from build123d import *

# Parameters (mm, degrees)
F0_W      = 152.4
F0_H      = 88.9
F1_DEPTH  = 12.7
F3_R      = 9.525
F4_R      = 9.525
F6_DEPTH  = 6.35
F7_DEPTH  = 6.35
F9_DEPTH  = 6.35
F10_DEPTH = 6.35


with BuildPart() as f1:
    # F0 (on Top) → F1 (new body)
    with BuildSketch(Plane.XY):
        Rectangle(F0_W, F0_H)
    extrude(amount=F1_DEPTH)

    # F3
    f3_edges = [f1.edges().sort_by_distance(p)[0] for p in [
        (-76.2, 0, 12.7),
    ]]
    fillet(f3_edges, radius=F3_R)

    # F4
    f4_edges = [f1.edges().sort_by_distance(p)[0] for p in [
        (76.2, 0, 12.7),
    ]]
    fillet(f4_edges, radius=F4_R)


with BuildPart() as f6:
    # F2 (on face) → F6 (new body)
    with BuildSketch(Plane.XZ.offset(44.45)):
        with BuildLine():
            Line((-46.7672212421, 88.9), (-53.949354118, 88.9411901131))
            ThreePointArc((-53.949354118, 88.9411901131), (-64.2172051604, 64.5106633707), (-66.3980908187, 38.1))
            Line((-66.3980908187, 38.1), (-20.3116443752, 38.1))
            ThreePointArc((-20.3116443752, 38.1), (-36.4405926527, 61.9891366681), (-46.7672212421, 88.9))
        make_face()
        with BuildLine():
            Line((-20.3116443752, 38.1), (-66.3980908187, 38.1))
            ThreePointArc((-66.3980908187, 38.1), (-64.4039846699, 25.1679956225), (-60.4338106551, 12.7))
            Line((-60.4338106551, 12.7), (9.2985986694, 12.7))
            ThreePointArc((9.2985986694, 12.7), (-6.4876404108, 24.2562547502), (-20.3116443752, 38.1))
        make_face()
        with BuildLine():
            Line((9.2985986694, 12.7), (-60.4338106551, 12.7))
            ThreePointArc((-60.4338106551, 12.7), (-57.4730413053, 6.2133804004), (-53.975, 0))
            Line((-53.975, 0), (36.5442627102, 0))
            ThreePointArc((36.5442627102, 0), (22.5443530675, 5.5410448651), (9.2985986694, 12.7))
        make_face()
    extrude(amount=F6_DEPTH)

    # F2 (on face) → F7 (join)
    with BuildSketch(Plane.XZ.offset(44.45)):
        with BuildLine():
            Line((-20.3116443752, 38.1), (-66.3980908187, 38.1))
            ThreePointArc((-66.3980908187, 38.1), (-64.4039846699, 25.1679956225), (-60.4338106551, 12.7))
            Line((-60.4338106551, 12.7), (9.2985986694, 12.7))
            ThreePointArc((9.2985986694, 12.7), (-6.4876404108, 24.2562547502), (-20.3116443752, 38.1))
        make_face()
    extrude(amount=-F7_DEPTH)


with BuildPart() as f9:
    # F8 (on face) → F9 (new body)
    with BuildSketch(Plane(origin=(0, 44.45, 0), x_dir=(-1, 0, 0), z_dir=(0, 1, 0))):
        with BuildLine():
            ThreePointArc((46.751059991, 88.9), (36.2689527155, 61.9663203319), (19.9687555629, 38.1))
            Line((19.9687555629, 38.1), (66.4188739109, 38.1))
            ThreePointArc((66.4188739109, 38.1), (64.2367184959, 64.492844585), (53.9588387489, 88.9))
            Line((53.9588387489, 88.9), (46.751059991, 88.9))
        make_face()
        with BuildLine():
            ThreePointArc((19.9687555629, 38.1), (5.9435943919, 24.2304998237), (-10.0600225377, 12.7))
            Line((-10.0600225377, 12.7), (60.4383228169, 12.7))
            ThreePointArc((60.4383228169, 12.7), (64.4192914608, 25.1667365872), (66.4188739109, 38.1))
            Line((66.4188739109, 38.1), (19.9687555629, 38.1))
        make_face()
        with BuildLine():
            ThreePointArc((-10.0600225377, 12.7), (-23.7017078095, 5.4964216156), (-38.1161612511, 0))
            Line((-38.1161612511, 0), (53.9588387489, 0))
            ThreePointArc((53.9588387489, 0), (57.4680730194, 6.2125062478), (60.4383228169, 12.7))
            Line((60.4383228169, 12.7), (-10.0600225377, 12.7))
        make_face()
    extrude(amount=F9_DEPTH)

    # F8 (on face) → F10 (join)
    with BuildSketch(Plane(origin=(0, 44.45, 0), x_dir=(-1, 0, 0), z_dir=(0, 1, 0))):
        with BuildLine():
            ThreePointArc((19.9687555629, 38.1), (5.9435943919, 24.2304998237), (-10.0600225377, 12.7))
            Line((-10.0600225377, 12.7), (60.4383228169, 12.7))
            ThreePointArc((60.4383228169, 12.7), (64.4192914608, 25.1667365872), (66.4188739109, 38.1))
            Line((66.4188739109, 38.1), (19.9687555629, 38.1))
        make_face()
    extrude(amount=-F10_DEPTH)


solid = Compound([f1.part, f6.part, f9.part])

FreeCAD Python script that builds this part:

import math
import FreeCAD as App
import Part
import Sketcher
from FreeCAD import Vector
Q = App.Units.Quantity


def edges_at(feature, points):
    """Names of the edges that pass closest to the given points."""
    edges = feature.Shape.Edges
    near = lambda p: min(range(len(edges)), key=lambda i: edges[i].distToShape(Part.Vertex(*p))[0])
    return sorted({f"Edge{near(p) + 1}" for p in points})

doc = App.newDocument("Part")
body = doc.addObject("PartDesign::Body", "Body")

# Sketch on XY plane
sketch1 = body.newObject("Sketcher::SketchObject", "Sketch")
sketch1.AttachmentSupport = (doc.getObject("XY_Plane"), [""])
sketch1.MapMode = "FlatFace"
sketch1.addGeometry([
    Part.LineSegment(Vector(-76, 44, 0), Vector(-76, -44, 0)),
    Part.LineSegment(Vector(-76, -44, 0), Vector(76, -44, 0)),
    Part.LineSegment(Vector(76, -44, 0), Vector(76, 44, 0)),
    Part.LineSegment(Vector(76, 44, 0), Vector(-76, 44, 0)),
], False)
sketch1.addConstraint([
    Sketcher.Constraint("Coincident", 0, 2, 1, 1),
    Sketcher.Constraint("Coincident", 1, 2, 2, 1),
    Sketcher.Constraint("Coincident", 2, 2, 3, 1),
    Sketcher.Constraint("Coincident", 3, 2, 0, 1),
    Sketcher.Constraint("Vertical", 0),
    Sketcher.Constraint("Horizontal", 1),
    Sketcher.Constraint("Vertical", 2),
    Sketcher.Constraint("Horizontal", 3),
    Sketcher.Constraint("Symmetric", 0, 2, 2, 2, -1, 1),
    Sketcher.Constraint("DistanceX", 1, 1, 1, 2, Q("6 in")),
    Sketcher.Constraint("DistanceY", 0, 2, 0, 1, Q("3.5 in")),
])
pad1 = body.newObject("PartDesign::Pad", "Pad")
pad1.Profile = sketch1
pad1.Length = Q("0.5 in")
doc.recompute()

fillet = body.newObject("PartDesign::Fillet", "Fillet")
fillet.Base = (pad1, edges_at(pad1, [(-76.2, 0, 12.7)]))
fillet.Radius = Q("0.375 in")
doc.recompute()

fillet2 = body.newObject("PartDesign::Fillet", "Fillet001")
fillet2.Base = (fillet, edges_at(fillet, [(76.2, 0, 12.7)]))
fillet2.Radius = Q("0.375 in")
body2 = doc.addObject("PartDesign::Body", "Body001")

# Sketch on XZ plane
sketch2 = body2.newObject("Sketcher::SketchObject", "Sketch001")
sketch2.AttachmentSupport = (doc.getObject("XZ_Plane001"), [""])
sketch2.MapMode = "FlatFace"
sketch2.AttachmentOffset = App.Placement(Vector(0, 0, 1.75 * 25.4), App.Rotation())
sketch2.addGeometry([
    Part.LineSegment(Vector(-47, 89, 0), Vector(-54, 89, 0)),  # 0
    Part.ArcOfCircle(Part.Circle(Vector(18, 44, 0), Vector(0, 0, 1), 84), math.radians(148), math.radians(184)),  # 1
    Part.ArcOfCircle(Part.Circle(Vector(18, 44, 0), Vector(0, 0, 1), 84), math.radians(-175.68), math.radians(-157.89)),  # 2
    Part.ArcOfCircle(Part.Circle(Vector(18, 44, 0), Vector(0, 0, 1), 84), math.radians(-157.89), math.radians(-148.2)),  # 3
    Part.LineSegment(Vector(-54, 0, 0), Vector(37, 0, 0)),  # 4
    Part.ArcOfCircle(Part.Circle(Vector(76, 121, 0), Vector(0, 0, 1), 127), math.radians(-121.79), math.radians(-108.19)),  # 5
    Part.ArcOfCircle(Part.Circle(Vector(76, 121, 0), Vector(0, 0, 1), 127), math.radians(-139.46), math.radians(-121.79)),  # 6
    Part.ArcOfCircle(Part.Circle(Vector(76, 121, 0), Vector(0, 0, 1), 127), math.radians(-166), math.radians(-139)),  # 7
], False)
sketch2.addConstraint([
    Sketcher.Constraint("Coincident", 0, 2, 1, 1),
    Sketcher.Constraint("Tangent", 1, 2, 2, 1),
    Sketcher.Constraint("Tangent", 2, 2, 3, 1),
    Sketcher.Constraint("Coincident", 3, 2, 4, 1),
    Sketcher.Constraint("Coincident", 4, 2, 5, 2),
    Sketcher.Constraint("Tangent", 5, 1, 6, 2),
    Sketcher.Constraint("Tangent", 6, 1, 7, 2),
    Sketcher.Constraint("Coincident", 7, 1, 0, 1),
    Sketcher.Constraint("Horizontal", 4),
    Sketcher.Constraint("Coincident", 3, 3, 1, 3),
    Sketcher.Constraint("Coincident", 7, 3, 5, 3),
    Sketcher.Constraint("PointOnObject", 3, 2, -1),
    Sketcher.Constraint("Horizontal", 2, 2, 5, 1),
    Sketcher.Constraint("Horizontal", 1, 2, 6, 1),
    Sketcher.Constraint("Radius", 5, Q("5 in")),
    Sketcher.Constraint("DistanceX", -1, 1, 5, 3, Q("3 in")),
    Sketcher.Constraint("DistanceY", 2, 2, 1, 2, Q("1 in")),
    Sketcher.Constraint("DistanceY", 1, 2, 7, 1, Q("2 in")),
    Sketcher.Constraint("DistanceY", -1, 1, 1, 2, Q("1.5 in")),
    Sketcher.Constraint("DistanceY", -1, 1, 5, 3, Q("4.75 in")),
    Sketcher.Constraint("DistanceX", 3, 2, -1, 1, Q("2.125 in")),
    Sketcher.Constraint("Radius", 1, Q("84.349169 mm")),
    Sketcher.Constraint("Distance", 0, Q("7.182251 mm")),
    Sketcher.Constraint("DistanceY", -1, 1, 1, 3, Q("44.449928 mm")),
])
pad2 = body2.newObject("PartDesign::Pad", "Pad001")
pad2.Profile = sketch2
pad2.Length = Q("0.25 in")

# Sketch on XZ plane
sketch3 = body2.newObject("Sketcher::SketchObject", "Sketch002")
sketch3.AttachmentSupport = (doc.getObject("XZ_Plane001"), [""])
sketch3.MapMode = "FlatFace"
sketch3.AttachmentOffset = App.Placement(Vector(0, 0, 1.75 * 25.4), App.Rotation())
sketch3.addGeometry([
    Part.LineSegment(Vector(-20, 38, 0), Vector(-66, 38, 0)),
    Part.ArcOfCircle(Part.Circle(Vector(18, 44, 0), Vector(0, 0, 1), 84), math.radians(-175.68), math.radians(-157.89)),
    Part.LineSegment(Vector(-60, 13, 0), Vector(9, 13, 0)),
    Part.ArcOfCircle(Part.Circle(Vector(76, 121, 0), Vector(0, 0, 1), 127), math.radians(-139.46), math.radians(-121.79)),
], False)
sketch3.addConstraint([
    Sketcher.Constraint("Coincident", 0, 2, 1, 1),
    Sketcher.Constraint("Coincident", 1, 2, 2, 1),
    Sketcher.Constraint("Coincident", 2, 2, 3, 2),
    Sketcher.Constraint("Coincident", 3, 1, 0, 1),
    Sketcher.Constraint("Horizontal", 0),
    Sketcher.Constraint("Horizontal", 2),
    Sketcher.Constraint("Radius", 3, Q("5 in")),
    Sketcher.Constraint("DistanceX", -1, 1, 3, 3, Q("3 in")),
    Sketcher.Constraint("DistanceY", 1, 2, 0, 2, Q("1 in")),
    Sketcher.Constraint("DistanceY", -1, 1, 0, 2, Q("1.5 in")),
    Sketcher.Constraint("DistanceY", -1, 1, 3, 3, Q("4.75 in")),
    Sketcher.Constraint("Radius", 1, Q("84.349169 mm")),
    Sketcher.Constraint("DistanceX", 2, 1, 2, 2, Q("69.732409 mm")),
    Sketcher.Constraint("DistanceX", 0, 2, 0, 1, Q("46.086446 mm")),
])
pad3 = body2.newObject("PartDesign::Pad", "Pad002")
pad3.Profile = sketch3
pad3.Length = Q("0.25 in")
pad3.Reversed = True
body3 = doc.addObject("PartDesign::Body", "Body002")

# Sketch on XZ plane
sketch4 = body3.newObject("Sketcher::SketchObject", "Sketch003")
sketch4.AttachmentSupport = (doc.getObject("XZ_Plane002"), [""])
sketch4.MapMode = "FlatFace"
sketch4.AttachmentOffset = App.Placement(Vector(0, 0, -1.75 * 25.4), App.Rotation())
sketch4.addGeometry([
    Part.ArcOfCircle(Part.Circle(Vector(76, 121, 0), Vector(0, 0, 1), 127), math.radians(-165), math.radians(-121)),  # 0
    Part.ArcOfCircle(Part.Circle(Vector(76, 121, 0), Vector(0, 0, 1), 127), math.radians(-121.32), math.radians(-107.39)),  # 1
    Part.LineSegment(Vector(38, 0, 0), Vector(-54, 0, 0)),  # 2
    Part.ArcOfCircle(Part.Circle(Vector(17, 44, 0), Vector(0, 0, 1), 84), math.radians(-157.83), math.radians(-148.11)),  # 3
    Part.ArcOfCircle(Part.Circle(Vector(17, 44, 0), Vector(0, 0, 1), 84), math.radians(-175.67), math.radians(-157.83)),  # 4
    Part.ArcOfCircle(Part.Circle(Vector(17, 44, 0), Vector(0, 0, 1), 84), math.radians(148), math.radians(184)),  # 5
    Part.LineSegment(Vector(-54, 89, 0), Vector(-47, 89, 0)),  # 6
], False)
sketch4.addConstraint([
    Sketcher.Constraint("Tangent", 0, 2, 1, 1),
    Sketcher.Constraint("Coincident", 1, 2, 2, 1),
    Sketcher.Constraint("Coincident", 2, 2, 3, 2),
    Sketcher.Constraint("Tangent", 3, 1, 4, 2),
    Sketcher.Constraint("Tangent", 4, 1, 5, 2),
    Sketcher.Constraint("Coincident", 5, 1, 6, 1),
    Sketcher.Constraint("Coincident", 6, 2, 0, 1),
    Sketcher.Constraint("Horizontal", 2),
    Sketcher.Constraint("Horizontal", 6),
    Sketcher.Constraint("Coincident", 5, 3, 3, 3),
    Sketcher.Constraint("Equal", 0, 1),
    Sketcher.Constraint("PointOnObject", 1, 2, -1),
    Sketcher.Constraint("Horizontal", 0, 2, 3, 1),
    Sketcher.Constraint("Vertical", 2, 2, 5, 1),
    Sketcher.Constraint("Radius", 0, Q("5 in")),
    Sketcher.Constraint("Radius", 3, Q("3.3125 in")),
    Sketcher.Constraint("DistanceY", 3, 1, 4, 1, Q("1 in")),
    Sketcher.Constraint("DistanceY", 4, 1, 5, 1, Q("2 in")),
    Sketcher.Constraint("DistanceY", -1, 1, 0, 2, Q("0.5 in")),
    Sketcher.Constraint("DistanceX", 2, 2, 2, 1, Q("3.625 in")),
    Sketcher.Constraint("DistanceX", 6, 1, 6, 2, Q("7.207779 mm")),
    Sketcher.Constraint("DistanceX", -1, 1, 3, 3, Q("17.478661 mm")),
])
pad4 = body3.newObject("PartDesign::Pad", "Pad003")
pad4.Profile = sketch4
pad4.Length = Q("0.25 in")
pad4.Reversed = True

# Sketch on XZ plane
sketch5 = body3.newObject("Sketcher::SketchObject", "Sketch004")
sketch5.AttachmentSupport = (doc.getObject("XZ_Plane002"), [""])
sketch5.MapMode = "FlatFace"
sketch5.AttachmentOffset = App.Placement(Vector(0, 0, -1.75 * 25.4), App.Rotation())
sketch5.addGeometry([
    Part.ArcOfCircle(Part.Circle(Vector(76, 121, 0), Vector(0, 0, 1), 127), math.radians(-139.13), math.radians(-121.32)),
    Part.LineSegment(Vector(10, 13, 0), Vector(-60, 13, 0)),
    Part.ArcOfCircle(Part.Circle(Vector(17, 44, 0), Vector(0, 0, 1), 84), math.radians(-175.67), math.radians(-157.83)),
    Part.LineSegment(Vector(-66, 38, 0), Vector(-20, 38, 0)),
], False)
sketch5.addConstraint([
    Sketcher.Constraint("Coincident", 0, 2, 1, 1),
    Sketcher.Constraint("Coincident", 1, 2, 2, 2),
    Sketcher.Constraint("Coincident", 2, 1, 3, 1),
    Sketcher.Constraint("Coincident", 3, 2, 0, 1),
    Sketcher.Constraint("Horizontal", 1),
    Sketcher.Constraint("Horizontal", 3),
    Sketcher.Constraint("Radius", 0, Q("5 in")),
    Sketcher.Constraint("Radius", 2, Q("3.3125 in")),
    Sketcher.Constraint("DistanceY", 1, 2, 2, 1, Q("1 in")),
    Sketcher.Constraint("DistanceY", -1, 1, 0, 2, Q("0.5 in")),
    Sketcher.Constraint("DistanceY", -1, 1, 2, 3, Q("1.75 in")),
    Sketcher.Constraint("DistanceX", 3, 1, 3, 2, Q("46.450118 mm")),
    Sketcher.Constraint("DistanceX", 1, 2, 1, 1, Q("70.498345 mm")),
    Sketcher.Constraint("DistanceX", -1, 1, 2, 3, Q("17.478661 mm")),
])
pad5 = body3.newObject("PartDesign::Pad", "Pad004")
pad5.Profile = sketch5
pad5.Length = Q("0.25 in")

doc.recompute()
